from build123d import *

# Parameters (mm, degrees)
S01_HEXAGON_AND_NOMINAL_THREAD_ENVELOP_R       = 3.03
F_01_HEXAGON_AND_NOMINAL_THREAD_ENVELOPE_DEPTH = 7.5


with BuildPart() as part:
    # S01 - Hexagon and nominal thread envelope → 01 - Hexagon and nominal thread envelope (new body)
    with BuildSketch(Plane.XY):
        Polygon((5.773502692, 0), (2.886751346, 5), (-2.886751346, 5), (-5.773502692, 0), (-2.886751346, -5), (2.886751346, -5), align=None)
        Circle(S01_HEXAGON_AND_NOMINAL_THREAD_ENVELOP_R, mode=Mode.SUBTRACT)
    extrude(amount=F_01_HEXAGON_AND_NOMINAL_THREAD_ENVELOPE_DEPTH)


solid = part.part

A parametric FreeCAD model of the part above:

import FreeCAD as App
import Part
import Sketcher
Q = App.Units.Quantity

doc = App.newDocument("Part")
body = doc.addObject("PartDesign::Body", "Body")

sketch1 = body.newObject("Sketcher::SketchObject", "Sketch")
sketch1.AttachmentSupport = (doc.getObject("XY_Plane"), [""])
sketch1.MapMode = "FlatFace"
sketch1.addGeometry(Part.LineSegment(App.Vector(5.773503, 0, 0), App.Vector(2.886751, 5, 0)), False)
sketch1.addGeometry(Part.LineSegment(App.Vector(2.886751, 5, 0), App.Vector(-2.886751, 5, 0)), False)
sketch1.addGeometry(Part.LineSegment(App.Vector(-2.886751, 5, 0), App.Vector(-5.773503, 0, 0)), False)
sketch1.addGeometry(Part.LineSegment(App.Vector(-5.773503, 0, 0), App.Vector(-2.886751, -5, 0)), False)
sketch1.addGeometry(Part.LineSegment(App.Vector(-2.886751, -5, 0), App.Vector(2.886751, -5, 0)), False)
sketch1.addGeometry(Part.LineSegment(App.Vector(2.886751, -5, 0), App.Vector(5.773503, 0, 0)), False)
sketch1.addGeometry(Part.Circle(App.Vector(0, 0, 0), App.Vector(0, 0, 1), 3.03), False)
sketch1.addConstraint(Sketcher.Constraint("Coincident", 0, 2, 1, 1))
sketch1.addConstraint(Sketcher.Constraint("Coincident", 1, 2, 2, 1))
sketch1.addConstraint(Sketcher.Constraint("Coincident", 2, 2, 3, 1))
sketch1.addConstraint(Sketcher.Constraint("Coincident", 3, 2, 4, 1))
sketch1.addConstraint(Sketcher.Constraint("Coincident", 4, 2, 5, 1))
sketch1.addConstraint(Sketcher.Constraint("Coincident", 5, 2, 0, 1))
sketch1.addConstraint(Sketcher.Constraint("Horizontal", 1))
sketch1.addConstraint(Sketcher.Constraint("Horizontal", 4))
sketch1.addConstraint(Sketcher.Constraint("Coincident", 6, 3, -1, 1))
sketch1.addConstraint(Sketcher.Constraint("Symmetric", 0, 2, 3, 2, -1, 1))
sketch1.addConstraint(Sketcher.Constraint("Symmetric", 2, 2, 5, 2, -1, 1))
sketch1.addConstraint(Sketcher.Constraint("PointOnObject", 2, 2, -1))
sketch1.addConstraint(Sketcher.Constraint("Parallel", 2, 5))
sketch1.addConstraint(Sketcher.Constraint("Vertical", 1, 2, 3, 2))
sketch1.addConstraint(Sketcher.Constraint("Diameter", 6, 6.06))
sketch1.addConstraint(Sketcher.Constraint("Angle", 0, Q("120 deg")))
sketch1.addConstraint(Sketcher.Constraint("DistanceY", -1, 1, 0, 2, 5.0))
sketch1.addConstraint(Sketcher.Constraint("DistanceX", 1, 2, 1, 1, 5.773503))
pad1 = body.newObject("PartDesign::Pad", "Pad")
pad1.Profile = sketch1
pad1.Length = 7.5

doc.recompute()
